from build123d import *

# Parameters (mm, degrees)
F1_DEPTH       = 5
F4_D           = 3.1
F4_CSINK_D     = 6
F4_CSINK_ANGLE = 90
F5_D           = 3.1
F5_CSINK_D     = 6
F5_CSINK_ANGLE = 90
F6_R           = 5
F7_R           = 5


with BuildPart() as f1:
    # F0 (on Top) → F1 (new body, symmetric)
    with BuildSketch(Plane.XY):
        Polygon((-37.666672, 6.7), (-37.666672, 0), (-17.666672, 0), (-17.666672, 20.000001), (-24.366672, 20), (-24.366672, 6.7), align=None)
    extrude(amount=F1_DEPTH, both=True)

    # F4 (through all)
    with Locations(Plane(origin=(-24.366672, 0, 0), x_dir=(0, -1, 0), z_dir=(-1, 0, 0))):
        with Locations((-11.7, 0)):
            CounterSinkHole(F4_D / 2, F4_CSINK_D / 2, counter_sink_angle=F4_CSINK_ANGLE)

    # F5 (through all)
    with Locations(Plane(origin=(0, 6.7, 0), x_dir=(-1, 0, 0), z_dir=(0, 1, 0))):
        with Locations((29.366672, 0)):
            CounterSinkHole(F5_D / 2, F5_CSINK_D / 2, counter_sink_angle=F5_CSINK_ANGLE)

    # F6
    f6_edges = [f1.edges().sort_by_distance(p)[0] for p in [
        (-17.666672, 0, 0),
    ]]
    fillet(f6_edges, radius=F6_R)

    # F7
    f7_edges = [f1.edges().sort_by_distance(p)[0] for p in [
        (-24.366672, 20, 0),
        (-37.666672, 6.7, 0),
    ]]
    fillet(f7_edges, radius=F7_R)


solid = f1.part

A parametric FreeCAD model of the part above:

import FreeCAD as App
import Part
import Sketcher
from FreeCAD import Vector


def edges_at(feature, points):
    """Names of the edges that pass closest to the given points."""
    edges = feature.Shape.Edges
    near = lambda p: min(range(len(edges)), key=lambda i: edges[i].distToShape(Part.Vertex(*p))[0])
    return sorted({f"Edge{near(p) + 1}" for p in points})


def add_polygon(sketch, points):
    """Adds a closed chain of lines whose ends are joined by coincident constraints."""
    first, n = sketch.GeometryCount, len(points)
    for a, b in zip(points, points[1:] + points[:1]):
        sketch.addGeometry(Part.LineSegment(App.Vector(*a, 0), App.Vector(*b, 0)), False)
    for i in range(n):
        sketch.addConstraint(Sketcher.Constraint("Coincident", first + i, 2, first + (i + 1) % n, 1))

doc = App.newDocument("Part")
body = doc.addObject("PartDesign::Body", "Body")

sketch1 = body.newObject("Sketcher::SketchObject", "Sketch")
sketch1.AttachmentSupport = (doc.getObject("XY_Plane"), [""])
sketch1.MapMode = "FlatFace"
add_polygon(sketch1, [(-38, 7), (-38, 0), (-18, 0), (-18, 20), (-24, 20), (-24, 7)])
sketch1.addConstraint(Sketcher.Constraint("Vertical", 0))
sketch1.addConstraint(Sketcher.Constraint("Horizontal", 1))
sketch1.addConstraint(Sketcher.Constraint("Vertical", 2))
sketch1.addConstraint(Sketcher.Constraint("Horizontal", 3))
sketch1.addConstraint(Sketcher.Constraint("Vertical", 4))
sketch1.addConstraint(Sketcher.Constraint("Horizontal", 5))
sketch1.addConstraint(Sketcher.Constraint("PointOnObject", 0, 2, -1))
sketch1.addConstraint(Sketcher.Constraint("Equal", 3, 0))
sketch1.addConstraint(Sketcher.Constraint("Equal", 1, 2))
sketch1.addConstraint(Sketcher.Constraint("DistanceX", 1, 1, 1, 2, 20.0))
sketch1.addConstraint(Sketcher.Constraint("DistanceX", 3, 2, 3, 1, 6.7))
sketch1.addConstraint(Sketcher.Constraint("DistanceX", 0, 2, -1, 1, 37.666672))
pad1 = body.newObject("PartDesign::Pad", "Pad")
pad1.Profile = sketch1
pad1.Length = 10
pad1.Midplane = True

sketch2 = body.newObject("Sketcher::SketchObject", "Sketch001")
sketch2.AttachmentSupport = (doc.getObject("YZ_Plane"), [""])
sketch2.MapMode = "FlatFace"
sketch2.AttachmentOffset = App.Placement(Vector(0, 0, -24.366672), App.Rotation())
sketch2.addGeometry(Part.Circle(Vector(11.7, 0, 0), Vector(0, 0, 1), 1.6), False)
sketch2.addConstraint(Sketcher.Constraint("PointOnObject", 0, 3, -1))
sketch2.addConstraint(Sketcher.Constraint("Diameter", 0, 3.1))
sketch2.addConstraint(Sketcher.Constraint("DistanceX", -1, 1, 0, 3, 11.7))
doc.recompute()
hole = body.newObject("PartDesign::Hole", "Hole")
hole.Profile = sketch2
hole.ThreadType = "None"
hole.Diameter = 3.1
hole.DepthType = "ThroughAll"
hole.HoleCutType = "Countersink"
hole.HoleCutDiameter = 6
hole.HoleCutCountersinkAngle = 90
hole.Reversed = True

sketch3 = body.newObject("Sketcher::SketchObject", "Sketch002")
sketch3.AttachmentSupport = (doc.getObject("XZ_Plane"), [""])
sketch3.MapMode = "FlatFace"
sketch3.AttachmentOffset = App.Placement(Vector(0, 0, -6.7), App.Rotation())
sketch3.addGeometry(Part.Circle(Vector(-29.4, 0, 0), Vector(0, 0, 1), 1.6), False)
sketch3.addConstraint(Sketcher.Constraint("PointOnObject", 0, 3, -1))
sketch3.addConstraint(Sketcher.Constraint("Diameter", 0, 3.1))
sketch3.addConstraint(Sketcher.Constraint("DistanceX", 0, 3, -1, 1, 29.366672))
doc.recompute()
hole2 = body.newObject("PartDesign::Hole", "Hole001")
hole2.Profile = sketch3
hole2.ThreadType = "None"
hole2.Diameter = 3.1
hole2.DepthType = "ThroughAll"
hole2.HoleCutType = "Countersink"
hole2.HoleCutDiameter = 6
hole2.HoleCutCountersinkAngle = 90
hole2.Reversed = True
doc.recompute()

fillet = body.newObject("PartDesign::Fillet", "Fillet")
fillet.Base = (hole2, edges_at(hole2, [(-17.667, 0, 0)]))
fillet.Radius = 5
doc.recompute()

fillet2 = body.newObject("PartDesign::Fillet", "Fillet001")
fillet2.Base = (fillet, edges_at(fillet, [(-24.367, 20, 0), (-37.667, 6.7, 0)]))
fillet2.Radius = 5

doc.recompute()
